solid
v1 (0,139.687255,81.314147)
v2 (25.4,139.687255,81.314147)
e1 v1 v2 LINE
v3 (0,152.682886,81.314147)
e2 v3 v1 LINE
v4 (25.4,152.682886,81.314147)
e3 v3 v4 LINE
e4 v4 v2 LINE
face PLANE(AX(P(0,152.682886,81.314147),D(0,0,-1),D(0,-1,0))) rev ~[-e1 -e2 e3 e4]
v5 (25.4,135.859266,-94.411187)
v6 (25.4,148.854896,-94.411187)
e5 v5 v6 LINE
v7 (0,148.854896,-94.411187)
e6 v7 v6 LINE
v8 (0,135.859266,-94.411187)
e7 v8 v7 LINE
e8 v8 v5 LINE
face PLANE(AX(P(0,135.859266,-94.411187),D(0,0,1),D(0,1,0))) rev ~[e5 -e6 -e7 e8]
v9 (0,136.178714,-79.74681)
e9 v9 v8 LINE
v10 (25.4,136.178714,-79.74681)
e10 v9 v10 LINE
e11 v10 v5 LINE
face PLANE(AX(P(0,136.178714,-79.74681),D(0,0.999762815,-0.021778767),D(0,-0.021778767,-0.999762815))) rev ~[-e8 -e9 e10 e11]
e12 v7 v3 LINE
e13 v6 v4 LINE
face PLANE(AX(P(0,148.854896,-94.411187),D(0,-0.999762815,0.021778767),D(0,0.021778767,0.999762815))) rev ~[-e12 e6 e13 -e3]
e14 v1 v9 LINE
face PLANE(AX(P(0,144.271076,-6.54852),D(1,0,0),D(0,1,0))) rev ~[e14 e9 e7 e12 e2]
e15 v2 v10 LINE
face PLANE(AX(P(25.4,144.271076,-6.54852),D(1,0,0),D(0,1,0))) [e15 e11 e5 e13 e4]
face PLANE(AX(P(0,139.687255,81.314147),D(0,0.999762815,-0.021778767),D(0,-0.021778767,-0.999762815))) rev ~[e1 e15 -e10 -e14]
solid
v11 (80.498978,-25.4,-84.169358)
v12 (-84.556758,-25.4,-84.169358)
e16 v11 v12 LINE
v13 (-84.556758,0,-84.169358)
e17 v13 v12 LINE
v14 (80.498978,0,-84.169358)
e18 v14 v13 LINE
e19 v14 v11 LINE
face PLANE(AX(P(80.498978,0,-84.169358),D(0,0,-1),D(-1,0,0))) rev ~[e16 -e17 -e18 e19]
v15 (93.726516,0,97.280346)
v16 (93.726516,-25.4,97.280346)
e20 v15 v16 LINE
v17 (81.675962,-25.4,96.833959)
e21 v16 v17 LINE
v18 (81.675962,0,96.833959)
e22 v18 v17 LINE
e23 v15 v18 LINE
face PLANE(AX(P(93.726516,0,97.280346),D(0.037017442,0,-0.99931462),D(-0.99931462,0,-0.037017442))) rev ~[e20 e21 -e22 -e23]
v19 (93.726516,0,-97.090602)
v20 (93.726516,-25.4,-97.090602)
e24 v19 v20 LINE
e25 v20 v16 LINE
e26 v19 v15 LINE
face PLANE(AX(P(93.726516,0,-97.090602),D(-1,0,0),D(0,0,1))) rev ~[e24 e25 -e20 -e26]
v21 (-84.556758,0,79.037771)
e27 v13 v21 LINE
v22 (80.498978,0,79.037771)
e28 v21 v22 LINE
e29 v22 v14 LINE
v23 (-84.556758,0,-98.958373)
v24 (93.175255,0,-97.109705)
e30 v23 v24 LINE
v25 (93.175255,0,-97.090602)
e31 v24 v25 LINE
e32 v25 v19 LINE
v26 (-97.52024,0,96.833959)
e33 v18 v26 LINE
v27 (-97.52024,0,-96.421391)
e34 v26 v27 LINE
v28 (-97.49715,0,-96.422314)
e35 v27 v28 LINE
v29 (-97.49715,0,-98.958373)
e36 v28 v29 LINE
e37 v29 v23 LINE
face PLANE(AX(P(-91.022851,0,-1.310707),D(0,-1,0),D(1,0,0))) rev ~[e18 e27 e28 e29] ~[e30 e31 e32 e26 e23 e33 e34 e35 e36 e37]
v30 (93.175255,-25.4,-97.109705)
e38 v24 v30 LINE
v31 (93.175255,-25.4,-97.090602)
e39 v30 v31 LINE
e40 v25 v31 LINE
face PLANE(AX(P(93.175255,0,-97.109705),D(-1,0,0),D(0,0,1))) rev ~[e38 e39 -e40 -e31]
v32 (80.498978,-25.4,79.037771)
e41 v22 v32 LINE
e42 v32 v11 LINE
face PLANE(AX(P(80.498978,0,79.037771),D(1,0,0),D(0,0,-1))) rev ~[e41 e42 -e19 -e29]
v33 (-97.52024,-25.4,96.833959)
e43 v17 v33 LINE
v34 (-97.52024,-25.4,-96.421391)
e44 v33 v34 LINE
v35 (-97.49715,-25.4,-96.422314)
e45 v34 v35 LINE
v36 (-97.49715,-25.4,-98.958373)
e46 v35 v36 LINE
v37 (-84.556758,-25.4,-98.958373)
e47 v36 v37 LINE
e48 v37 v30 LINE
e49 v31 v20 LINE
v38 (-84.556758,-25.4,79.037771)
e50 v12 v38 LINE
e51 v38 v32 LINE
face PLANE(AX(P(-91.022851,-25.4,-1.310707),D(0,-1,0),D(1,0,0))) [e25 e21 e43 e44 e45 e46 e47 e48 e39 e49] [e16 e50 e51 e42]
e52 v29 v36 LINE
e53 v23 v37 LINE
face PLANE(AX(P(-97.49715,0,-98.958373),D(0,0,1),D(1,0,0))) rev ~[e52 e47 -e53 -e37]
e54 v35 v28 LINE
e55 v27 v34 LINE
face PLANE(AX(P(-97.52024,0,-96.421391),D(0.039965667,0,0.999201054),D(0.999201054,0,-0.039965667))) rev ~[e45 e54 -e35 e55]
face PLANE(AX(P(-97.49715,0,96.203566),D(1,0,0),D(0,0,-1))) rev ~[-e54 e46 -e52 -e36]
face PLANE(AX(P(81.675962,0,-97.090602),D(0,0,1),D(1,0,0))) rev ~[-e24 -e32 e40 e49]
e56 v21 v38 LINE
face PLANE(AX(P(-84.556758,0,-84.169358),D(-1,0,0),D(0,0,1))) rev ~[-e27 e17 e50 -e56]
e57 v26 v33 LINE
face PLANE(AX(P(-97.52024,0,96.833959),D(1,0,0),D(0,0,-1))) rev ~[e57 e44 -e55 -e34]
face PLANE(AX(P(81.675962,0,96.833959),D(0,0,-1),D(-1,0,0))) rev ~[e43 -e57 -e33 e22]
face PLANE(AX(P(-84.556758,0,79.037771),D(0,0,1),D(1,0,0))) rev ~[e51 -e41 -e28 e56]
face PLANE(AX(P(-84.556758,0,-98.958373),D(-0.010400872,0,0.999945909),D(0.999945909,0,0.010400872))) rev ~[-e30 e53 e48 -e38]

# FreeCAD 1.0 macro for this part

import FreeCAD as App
import Part
import Sketcher

V = App.Vector
Q = App.Units.Quantity

doc = App.newDocument("Part")
params = doc.addObject("Spreadsheet::Sheet", "Params")
for row, (alias, value) in enumerate([
    ("pad1_length", "1 in"),
    ("pad2_length", "1 in"),
    ("pad3_length", "1 in"),
], start=1):
    params.set(f"A{row}", alias)
    params.set(f"B{row}", "=" + value)
    params.setAlias(f"B{row}", alias)

body = doc.addObject("PartDesign::Body", "Body")

# Sketch on XZ plane
sketch1 = doc.addObject("Sketcher::SketchObject", "Sketch")
body.addObject(sketch1)
sketch1.AttachmentSupport = (doc.XZ_Plane, [""])
sketch1.MapMode = "FlatFace"
sketch1.addGeometry(Part.LineSegment(V(93.726516, -97.090602, 0), V(93.726516, 97.280346, 0)), False)
sketch1.addGeometry(Part.LineSegment(V(93.726516, 97.280346, 0), V(81.675962, 96.833959, 0)), False)
sketch1.addGeometry(Part.LineSegment(V(81.675962, 96.833959, 0), V(-97.52024, 96.833959, 0)), False)
sketch1.addGeometry(Part.LineSegment(V(-97.52024, 96.833959, 0), V(-97.52024, -96.421391, 0)), False)
sketch1.addGeometry(Part.LineSegment(V(-97.52024, -96.421391, 0), V(-86.362332, -96.867681, 0)), False)
sketch1.addGeometry(Part.LineSegment(V(-86.362332, -96.867681, 0), V(81.675962, -97.090602, 0)), False)
sketch1.addGeometry(Part.LineSegment(V(81.675962, -97.090602, 0), V(93.726516, -97.090602, 0)), False)
sketch1.addGeometry(Part.LineSegment(V(-86.362332, 80.09696, 0), V(81.675962, 80.09696, 0)), False)
sketch1.addGeometry(Part.LineSegment(V(81.675962, 80.09696, 0), V(81.675962, -84.593967, 0)), False)
sketch1.addGeometry(Part.LineSegment(V(81.675962, -84.593967, 0), V(-86.362332, -84.593967, 0)), False)
sketch1.addGeometry(Part.LineSegment(V(-86.362332, -84.593967, 0), V(-86.362332, 80.09696, 0)), False)
sketch1.addConstraint(Sketcher.Constraint("Coincident", 0, 2, 1, 1))
sketch1.addConstraint(Sketcher.Constraint("Coincident", 1, 2, 2, 1))
sketch1.addConstraint(Sketcher.Constraint("Coincident", 2, 2, 3, 1))
sketch1.addConstraint(Sketcher.Constraint("Coincident", 3, 2, 4, 1))
sketch1.addConstraint(Sketcher.Constraint("Coincident", 4, 2, 5, 1))
sketch1.addConstraint(Sketcher.Constraint("Coincident", 5, 2, 6, 1))
sketch1.addConstraint(Sketcher.Constraint("Coincident", 6, 2, 0, 1))
sketch1.addConstraint(Sketcher.Constraint("Coincident", 7, 2, 8, 1))
sketch1.addConstraint(Sketcher.Constraint("Coincident", 8, 2, 9, 1))
sketch1.addConstraint(Sketcher.Constraint("Coincident", 9, 2, 10, 1))
sketch1.addConstraint(Sketcher.Constraint("Coincident", 10, 2, 7, 1))
sketch1.addConstraint(Sketcher.Constraint("Vertical", 0))
sketch1.addConstraint(Sketcher.Constraint("Horizontal", 2))
sketch1.addConstraint(Sketcher.Constraint("Vertical", 3))
sketch1.addConstraint(Sketcher.Constraint("Horizontal", 6))
sketch1.addConstraint(Sketcher.Constraint("Horizontal", 7))
sketch1.addConstraint(Sketcher.Constraint("Vertical", 8))
sketch1.addConstraint(Sketcher.Constraint("Horizontal", 9))
sketch1.addConstraint(Sketcher.Constraint("Vertical", 10))
sketch1.addConstraint(Sketcher.Constraint("Vertical", 1, 2, 5, 2))
sketch1.addConstraint(Sketcher.Constraint("Vertical", 5, 2, 7, 2))
sketch1.addConstraint(Sketcher.Constraint("Vertical", 4, 2, 9, 2))
sketch1.addConstraint(Sketcher.Constraint("DistanceX", 2, 2, 2, 1, 179.196201))
sketch1.addConstraint(Sketcher.Constraint("DistanceX", 2, 2, 0, 2, Q("7.5293998 in")))
sketch1.addConstraint(Sketcher.Constraint("DistanceY", 3, 2, 3, 1, 193.25535))
sketch1.addConstraint(Sketcher.Constraint("DistanceY", 5, 2, -1, 1, 97.090602))
sketch1.addConstraint(Sketcher.Constraint("DistanceY", 7, 2, 1, 2, 16.736999))
sketch1.addConstraint(Sketcher.Constraint("Distance", 1, 12.058819))
sketch1.addConstraint(Sketcher.Constraint("Distance", 4, 11.166829))
sketch1.addConstraint(Sketcher.Constraint("Distance", 5, 168.038442))
sketch1.addConstraint(Sketcher.Constraint("DistanceY", 0, 1, 0, 2, 194.370948))
sketch1.addConstraint(Sketcher.Constraint("DistanceY", 8, 2, 8, 1, 164.690927))
sketch1.addConstraint(Sketcher.Constraint("DistanceX", -1, 1, 1, 2, 81.675962))
pad1 = doc.addObject("PartDesign::Pad", "Pad")
body.addObject(pad1)
pad1.Profile = sketch1
pad1.setExpression("Length", "Params.pad1_length")

# Sketch on XZ plane
sketch2 = doc.addObject("Sketcher::SketchObject", "Sketch001")
body.addObject(sketch2)
sketch2.AttachmentSupport = (doc.XZ_Plane, [""])
sketch2.MapMode = "FlatFace"
sketch2.addGeometry(Part.LineSegment(V(-97.49715, -98.958373, 0), V(-84.556758, -98.958373, 0)), False)
sketch2.addGeometry(Part.LineSegment(V(-84.556758, -98.958373, 0), V(93.175255, -97.109705, 0)), False)
sketch2.addGeometry(Part.LineSegment(V(93.175255, -97.109705, 0), V(93.175255, 79.037771, 0)), False)
sketch2.addGeometry(Part.LineSegment(V(93.175255, 79.037771, 0), V(93.439355, 96.467659, 0)), False)
sketch2.addGeometry(Part.LineSegment(V(93.439355, 96.467659, 0), V(-84.556758, 96.467659, 0)), False)
sketch2.addGeometry(Part.LineSegment(V(-84.556758, 96.467659, 0), V(-97.49715, 96.203566, 0)), False)
sketch2.addGeometry(Part.LineSegment(V(-97.49715, 96.203566, 0), V(-97.49715, -98.958373, 0)), False)
sketch2.addGeometry(Part.LineSegment(V(80.498978, 79.037771, 0), V(80.498978, -84.169358, 0)), False)
sketch2.addGeometry(Part.LineSegment(V(80.498978, -84.169358, 0), V(-84.556758, -84.169358, 0)), False)
sketch2.addGeometry(Part.LineSegment(V(-84.556758, -84.169358, 0), V(-84.556758, 79.037771, 0)), False)
sketch2.addGeometry(Part.LineSegment(V(-84.556758, 79.037771, 0), V(80.498978, 79.037771, 0)), False)
sketch2.addConstraint(Sketcher.Constraint("Coincident", 0, 2, 1, 1))
sketch2.addConstraint(Sketcher.Constraint("Coincident", 1, 2, 2, 1))
sketch2.addConstraint(Sketcher.Constraint("Coincident", 2, 2, 3, 1))
sketch2.addConstraint(Sketcher.Constraint("Coincident", 3, 2, 4, 1))
sketch2.addConstraint(Sketcher.Constraint("Coincident", 4, 2, 5, 1))
sketch2.addConstraint(Sketcher.Constraint("Coincident", 5, 2, 6, 1))
sketch2.addConstraint(Sketcher.Constraint("Coincident", 6, 2, 0, 1))
sketch2.addConstraint(Sketcher.Constraint("Coincident", 7, 2, 8, 1))
sketch2.addConstraint(Sketcher.Constraint("Coincident", 8, 2, 9, 1))
sketch2.addConstraint(Sketcher.Constraint("Coincident", 9, 2, 10, 1))
sketch2.addConstraint(Sketcher.Constraint("Coincident", 10, 2, 7, 1))
sketch2.addConstraint(Sketcher.Constraint("Horizontal", 0))
sketch2.addConstraint(Sketcher.Constraint("Vertical", 2))
sketch2.addConstraint(Sketcher.Constraint("Horizontal", 4))
sketch2.addConstraint(Sketcher.Constraint("Vertical", 6))
sketch2.addConstraint(Sketcher.Constraint("Vertical", 7))
sketch2.addConstraint(Sketcher.Constraint("Horizontal", 8))
sketch2.addConstraint(Sketcher.Constraint("Vertical", 9))
sketch2.addConstraint(Sketcher.Constraint("Horizontal", 10))
sketch2.addConstraint(Sketcher.Constraint("Horizontal", 2, 2, 9, 2))
sketch2.addConstraint(Sketcher.Constraint("Vertical", 0, 2, 4, 2))
sketch2.addConstraint(Sketcher.Constraint("Vertical", 4, 2, 8, 2))
sketch2.addConstraint(Sketcher.Constraint("DistanceX", 0, 1, 0, 2, 12.940392))
sketch2.addConstraint(Sketcher.Constraint("DistanceY", 6, 2, 6, 1, 195.161939))
sketch2.addConstraint(Sketcher.Constraint("DistanceY", 7, 2, 7, 1, 163.207129))
sketch2.addConstraint(Sketcher.Constraint("DistanceX", 2, 2, 3, 2, 0.264101))
sketch2.addConstraint(Sketcher.Constraint("Distance", 3, 17.431889))
sketch2.addConstraint(Sketcher.Constraint("DistanceX", 4, 2, 4, 1, 177.996114))
sketch2.addConstraint(Sketcher.Constraint("DistanceX", 8, 2, 8, 1, 165.055737))
sketch2.addConstraint(Sketcher.Constraint("DistanceY", 2, 1, 2, 2, 176.147476))
sketch2.addConstraint(Sketcher.Constraint("DistanceX", 0, 2, -1, 1, 84.556758))
sketch2.addConstraint(Sketcher.Constraint("DistanceY", -1, 1, 2, 2, 79.037771))
sketch2.addConstraint(Sketcher.Constraint("DistanceY", 0, 2, 3, 2, 195.426032))
pad2 = doc.addObject("PartDesign::Pad", "Pad001")
body.addObject(pad2)
pad2.Profile = sketch2
pad2.setExpression("Length", "Params.pad2_length")
body2 = doc.addObject("PartDesign::Body", "Body001")

# Sketch on YZ plane
sketch3 = doc.addObject("Sketcher::SketchObject", "Sketch002")
body2.addObject(sketch3)
sketch3.AttachmentSupport = (doc.getObject("YZ_Plane001"), [""])
sketch3.MapMode = "FlatFace"
sketch3.addGeometry(Part.LineSegment(V(148.854896, -94.411187, 0), V(152.682886, 81.314147, 0)), False)
sketch3.addGeometry(Part.LineSegment(V(152.682886, 81.314147, 0), V(139.687255, 81.314147, 0)), False)
sketch3.addGeometry(Part.LineSegment(V(139.687255, 81.314147, 0), V(136.178714, -79.74681, 0)), False)
sketch3.addGeometry(Part.LineSegment(V(136.178714, -79.74681, 0), V(135.859266, -94.411187, 0)), False)
sketch3.addGeometry(Part.LineSegment(V(135.859266, -94.411187, 0), V(148.854896, -94.411187, 0)), False)
sketch3.addConstraint(Sketcher.Constraint("Coincident", 0, 2, 1, 1))
sketch3.addConstraint(Sketcher.Constraint("Coincident", 1, 2, 2, 1))
sketch3.addConstraint(Sketcher.Constraint("Coincident", 2, 2, 3, 1))
sketch3.addConstraint(Sketcher.Constraint("Coincident", 3, 2, 4, 1))
sketch3.addConstraint(Sketcher.Constraint("Coincident", 4, 2, 0, 1))
sketch3.addConstraint(Sketcher.Constraint("Horizontal", 1))
sketch3.addConstraint(Sketcher.Constraint("Horizontal", 4))
sketch3.addConstraint(Sketcher.Constraint("Parallel", 0, 2))
sketch3.addConstraint(Sketcher.Constraint("Parallel", 2, 3))
sketch3.addConstraint(Sketcher.Constraint("DistanceX", 1, 2, 1, 1, 12.995631))
sketch3.addConstraint(Sketcher.Constraint("DistanceY", 2, 2, -1, 1, 79.74681))
sketch3.addConstraint(Sketcher.Constraint("DistanceX", 2, 2, 1, 2, 3.508541))
sketch3.addConstraint(Sketcher.Constraint("DistanceX", 3, 2, 1, 2, 3.827989))
sketch3.addConstraint(Sketcher.Constraint("Distance", 0, 175.767023))
sketch3.addConstraint(Sketcher.Constraint("DistanceX", -1, 1, 0, 2, 152.682886))
pad3 = doc.addObject("PartDesign::Pad", "Pad002")
body2.addObject(pad3)
pad3.Profile = sketch3
pad3.setExpression("Length", "Params.pad3_length")

doc.recompute()
